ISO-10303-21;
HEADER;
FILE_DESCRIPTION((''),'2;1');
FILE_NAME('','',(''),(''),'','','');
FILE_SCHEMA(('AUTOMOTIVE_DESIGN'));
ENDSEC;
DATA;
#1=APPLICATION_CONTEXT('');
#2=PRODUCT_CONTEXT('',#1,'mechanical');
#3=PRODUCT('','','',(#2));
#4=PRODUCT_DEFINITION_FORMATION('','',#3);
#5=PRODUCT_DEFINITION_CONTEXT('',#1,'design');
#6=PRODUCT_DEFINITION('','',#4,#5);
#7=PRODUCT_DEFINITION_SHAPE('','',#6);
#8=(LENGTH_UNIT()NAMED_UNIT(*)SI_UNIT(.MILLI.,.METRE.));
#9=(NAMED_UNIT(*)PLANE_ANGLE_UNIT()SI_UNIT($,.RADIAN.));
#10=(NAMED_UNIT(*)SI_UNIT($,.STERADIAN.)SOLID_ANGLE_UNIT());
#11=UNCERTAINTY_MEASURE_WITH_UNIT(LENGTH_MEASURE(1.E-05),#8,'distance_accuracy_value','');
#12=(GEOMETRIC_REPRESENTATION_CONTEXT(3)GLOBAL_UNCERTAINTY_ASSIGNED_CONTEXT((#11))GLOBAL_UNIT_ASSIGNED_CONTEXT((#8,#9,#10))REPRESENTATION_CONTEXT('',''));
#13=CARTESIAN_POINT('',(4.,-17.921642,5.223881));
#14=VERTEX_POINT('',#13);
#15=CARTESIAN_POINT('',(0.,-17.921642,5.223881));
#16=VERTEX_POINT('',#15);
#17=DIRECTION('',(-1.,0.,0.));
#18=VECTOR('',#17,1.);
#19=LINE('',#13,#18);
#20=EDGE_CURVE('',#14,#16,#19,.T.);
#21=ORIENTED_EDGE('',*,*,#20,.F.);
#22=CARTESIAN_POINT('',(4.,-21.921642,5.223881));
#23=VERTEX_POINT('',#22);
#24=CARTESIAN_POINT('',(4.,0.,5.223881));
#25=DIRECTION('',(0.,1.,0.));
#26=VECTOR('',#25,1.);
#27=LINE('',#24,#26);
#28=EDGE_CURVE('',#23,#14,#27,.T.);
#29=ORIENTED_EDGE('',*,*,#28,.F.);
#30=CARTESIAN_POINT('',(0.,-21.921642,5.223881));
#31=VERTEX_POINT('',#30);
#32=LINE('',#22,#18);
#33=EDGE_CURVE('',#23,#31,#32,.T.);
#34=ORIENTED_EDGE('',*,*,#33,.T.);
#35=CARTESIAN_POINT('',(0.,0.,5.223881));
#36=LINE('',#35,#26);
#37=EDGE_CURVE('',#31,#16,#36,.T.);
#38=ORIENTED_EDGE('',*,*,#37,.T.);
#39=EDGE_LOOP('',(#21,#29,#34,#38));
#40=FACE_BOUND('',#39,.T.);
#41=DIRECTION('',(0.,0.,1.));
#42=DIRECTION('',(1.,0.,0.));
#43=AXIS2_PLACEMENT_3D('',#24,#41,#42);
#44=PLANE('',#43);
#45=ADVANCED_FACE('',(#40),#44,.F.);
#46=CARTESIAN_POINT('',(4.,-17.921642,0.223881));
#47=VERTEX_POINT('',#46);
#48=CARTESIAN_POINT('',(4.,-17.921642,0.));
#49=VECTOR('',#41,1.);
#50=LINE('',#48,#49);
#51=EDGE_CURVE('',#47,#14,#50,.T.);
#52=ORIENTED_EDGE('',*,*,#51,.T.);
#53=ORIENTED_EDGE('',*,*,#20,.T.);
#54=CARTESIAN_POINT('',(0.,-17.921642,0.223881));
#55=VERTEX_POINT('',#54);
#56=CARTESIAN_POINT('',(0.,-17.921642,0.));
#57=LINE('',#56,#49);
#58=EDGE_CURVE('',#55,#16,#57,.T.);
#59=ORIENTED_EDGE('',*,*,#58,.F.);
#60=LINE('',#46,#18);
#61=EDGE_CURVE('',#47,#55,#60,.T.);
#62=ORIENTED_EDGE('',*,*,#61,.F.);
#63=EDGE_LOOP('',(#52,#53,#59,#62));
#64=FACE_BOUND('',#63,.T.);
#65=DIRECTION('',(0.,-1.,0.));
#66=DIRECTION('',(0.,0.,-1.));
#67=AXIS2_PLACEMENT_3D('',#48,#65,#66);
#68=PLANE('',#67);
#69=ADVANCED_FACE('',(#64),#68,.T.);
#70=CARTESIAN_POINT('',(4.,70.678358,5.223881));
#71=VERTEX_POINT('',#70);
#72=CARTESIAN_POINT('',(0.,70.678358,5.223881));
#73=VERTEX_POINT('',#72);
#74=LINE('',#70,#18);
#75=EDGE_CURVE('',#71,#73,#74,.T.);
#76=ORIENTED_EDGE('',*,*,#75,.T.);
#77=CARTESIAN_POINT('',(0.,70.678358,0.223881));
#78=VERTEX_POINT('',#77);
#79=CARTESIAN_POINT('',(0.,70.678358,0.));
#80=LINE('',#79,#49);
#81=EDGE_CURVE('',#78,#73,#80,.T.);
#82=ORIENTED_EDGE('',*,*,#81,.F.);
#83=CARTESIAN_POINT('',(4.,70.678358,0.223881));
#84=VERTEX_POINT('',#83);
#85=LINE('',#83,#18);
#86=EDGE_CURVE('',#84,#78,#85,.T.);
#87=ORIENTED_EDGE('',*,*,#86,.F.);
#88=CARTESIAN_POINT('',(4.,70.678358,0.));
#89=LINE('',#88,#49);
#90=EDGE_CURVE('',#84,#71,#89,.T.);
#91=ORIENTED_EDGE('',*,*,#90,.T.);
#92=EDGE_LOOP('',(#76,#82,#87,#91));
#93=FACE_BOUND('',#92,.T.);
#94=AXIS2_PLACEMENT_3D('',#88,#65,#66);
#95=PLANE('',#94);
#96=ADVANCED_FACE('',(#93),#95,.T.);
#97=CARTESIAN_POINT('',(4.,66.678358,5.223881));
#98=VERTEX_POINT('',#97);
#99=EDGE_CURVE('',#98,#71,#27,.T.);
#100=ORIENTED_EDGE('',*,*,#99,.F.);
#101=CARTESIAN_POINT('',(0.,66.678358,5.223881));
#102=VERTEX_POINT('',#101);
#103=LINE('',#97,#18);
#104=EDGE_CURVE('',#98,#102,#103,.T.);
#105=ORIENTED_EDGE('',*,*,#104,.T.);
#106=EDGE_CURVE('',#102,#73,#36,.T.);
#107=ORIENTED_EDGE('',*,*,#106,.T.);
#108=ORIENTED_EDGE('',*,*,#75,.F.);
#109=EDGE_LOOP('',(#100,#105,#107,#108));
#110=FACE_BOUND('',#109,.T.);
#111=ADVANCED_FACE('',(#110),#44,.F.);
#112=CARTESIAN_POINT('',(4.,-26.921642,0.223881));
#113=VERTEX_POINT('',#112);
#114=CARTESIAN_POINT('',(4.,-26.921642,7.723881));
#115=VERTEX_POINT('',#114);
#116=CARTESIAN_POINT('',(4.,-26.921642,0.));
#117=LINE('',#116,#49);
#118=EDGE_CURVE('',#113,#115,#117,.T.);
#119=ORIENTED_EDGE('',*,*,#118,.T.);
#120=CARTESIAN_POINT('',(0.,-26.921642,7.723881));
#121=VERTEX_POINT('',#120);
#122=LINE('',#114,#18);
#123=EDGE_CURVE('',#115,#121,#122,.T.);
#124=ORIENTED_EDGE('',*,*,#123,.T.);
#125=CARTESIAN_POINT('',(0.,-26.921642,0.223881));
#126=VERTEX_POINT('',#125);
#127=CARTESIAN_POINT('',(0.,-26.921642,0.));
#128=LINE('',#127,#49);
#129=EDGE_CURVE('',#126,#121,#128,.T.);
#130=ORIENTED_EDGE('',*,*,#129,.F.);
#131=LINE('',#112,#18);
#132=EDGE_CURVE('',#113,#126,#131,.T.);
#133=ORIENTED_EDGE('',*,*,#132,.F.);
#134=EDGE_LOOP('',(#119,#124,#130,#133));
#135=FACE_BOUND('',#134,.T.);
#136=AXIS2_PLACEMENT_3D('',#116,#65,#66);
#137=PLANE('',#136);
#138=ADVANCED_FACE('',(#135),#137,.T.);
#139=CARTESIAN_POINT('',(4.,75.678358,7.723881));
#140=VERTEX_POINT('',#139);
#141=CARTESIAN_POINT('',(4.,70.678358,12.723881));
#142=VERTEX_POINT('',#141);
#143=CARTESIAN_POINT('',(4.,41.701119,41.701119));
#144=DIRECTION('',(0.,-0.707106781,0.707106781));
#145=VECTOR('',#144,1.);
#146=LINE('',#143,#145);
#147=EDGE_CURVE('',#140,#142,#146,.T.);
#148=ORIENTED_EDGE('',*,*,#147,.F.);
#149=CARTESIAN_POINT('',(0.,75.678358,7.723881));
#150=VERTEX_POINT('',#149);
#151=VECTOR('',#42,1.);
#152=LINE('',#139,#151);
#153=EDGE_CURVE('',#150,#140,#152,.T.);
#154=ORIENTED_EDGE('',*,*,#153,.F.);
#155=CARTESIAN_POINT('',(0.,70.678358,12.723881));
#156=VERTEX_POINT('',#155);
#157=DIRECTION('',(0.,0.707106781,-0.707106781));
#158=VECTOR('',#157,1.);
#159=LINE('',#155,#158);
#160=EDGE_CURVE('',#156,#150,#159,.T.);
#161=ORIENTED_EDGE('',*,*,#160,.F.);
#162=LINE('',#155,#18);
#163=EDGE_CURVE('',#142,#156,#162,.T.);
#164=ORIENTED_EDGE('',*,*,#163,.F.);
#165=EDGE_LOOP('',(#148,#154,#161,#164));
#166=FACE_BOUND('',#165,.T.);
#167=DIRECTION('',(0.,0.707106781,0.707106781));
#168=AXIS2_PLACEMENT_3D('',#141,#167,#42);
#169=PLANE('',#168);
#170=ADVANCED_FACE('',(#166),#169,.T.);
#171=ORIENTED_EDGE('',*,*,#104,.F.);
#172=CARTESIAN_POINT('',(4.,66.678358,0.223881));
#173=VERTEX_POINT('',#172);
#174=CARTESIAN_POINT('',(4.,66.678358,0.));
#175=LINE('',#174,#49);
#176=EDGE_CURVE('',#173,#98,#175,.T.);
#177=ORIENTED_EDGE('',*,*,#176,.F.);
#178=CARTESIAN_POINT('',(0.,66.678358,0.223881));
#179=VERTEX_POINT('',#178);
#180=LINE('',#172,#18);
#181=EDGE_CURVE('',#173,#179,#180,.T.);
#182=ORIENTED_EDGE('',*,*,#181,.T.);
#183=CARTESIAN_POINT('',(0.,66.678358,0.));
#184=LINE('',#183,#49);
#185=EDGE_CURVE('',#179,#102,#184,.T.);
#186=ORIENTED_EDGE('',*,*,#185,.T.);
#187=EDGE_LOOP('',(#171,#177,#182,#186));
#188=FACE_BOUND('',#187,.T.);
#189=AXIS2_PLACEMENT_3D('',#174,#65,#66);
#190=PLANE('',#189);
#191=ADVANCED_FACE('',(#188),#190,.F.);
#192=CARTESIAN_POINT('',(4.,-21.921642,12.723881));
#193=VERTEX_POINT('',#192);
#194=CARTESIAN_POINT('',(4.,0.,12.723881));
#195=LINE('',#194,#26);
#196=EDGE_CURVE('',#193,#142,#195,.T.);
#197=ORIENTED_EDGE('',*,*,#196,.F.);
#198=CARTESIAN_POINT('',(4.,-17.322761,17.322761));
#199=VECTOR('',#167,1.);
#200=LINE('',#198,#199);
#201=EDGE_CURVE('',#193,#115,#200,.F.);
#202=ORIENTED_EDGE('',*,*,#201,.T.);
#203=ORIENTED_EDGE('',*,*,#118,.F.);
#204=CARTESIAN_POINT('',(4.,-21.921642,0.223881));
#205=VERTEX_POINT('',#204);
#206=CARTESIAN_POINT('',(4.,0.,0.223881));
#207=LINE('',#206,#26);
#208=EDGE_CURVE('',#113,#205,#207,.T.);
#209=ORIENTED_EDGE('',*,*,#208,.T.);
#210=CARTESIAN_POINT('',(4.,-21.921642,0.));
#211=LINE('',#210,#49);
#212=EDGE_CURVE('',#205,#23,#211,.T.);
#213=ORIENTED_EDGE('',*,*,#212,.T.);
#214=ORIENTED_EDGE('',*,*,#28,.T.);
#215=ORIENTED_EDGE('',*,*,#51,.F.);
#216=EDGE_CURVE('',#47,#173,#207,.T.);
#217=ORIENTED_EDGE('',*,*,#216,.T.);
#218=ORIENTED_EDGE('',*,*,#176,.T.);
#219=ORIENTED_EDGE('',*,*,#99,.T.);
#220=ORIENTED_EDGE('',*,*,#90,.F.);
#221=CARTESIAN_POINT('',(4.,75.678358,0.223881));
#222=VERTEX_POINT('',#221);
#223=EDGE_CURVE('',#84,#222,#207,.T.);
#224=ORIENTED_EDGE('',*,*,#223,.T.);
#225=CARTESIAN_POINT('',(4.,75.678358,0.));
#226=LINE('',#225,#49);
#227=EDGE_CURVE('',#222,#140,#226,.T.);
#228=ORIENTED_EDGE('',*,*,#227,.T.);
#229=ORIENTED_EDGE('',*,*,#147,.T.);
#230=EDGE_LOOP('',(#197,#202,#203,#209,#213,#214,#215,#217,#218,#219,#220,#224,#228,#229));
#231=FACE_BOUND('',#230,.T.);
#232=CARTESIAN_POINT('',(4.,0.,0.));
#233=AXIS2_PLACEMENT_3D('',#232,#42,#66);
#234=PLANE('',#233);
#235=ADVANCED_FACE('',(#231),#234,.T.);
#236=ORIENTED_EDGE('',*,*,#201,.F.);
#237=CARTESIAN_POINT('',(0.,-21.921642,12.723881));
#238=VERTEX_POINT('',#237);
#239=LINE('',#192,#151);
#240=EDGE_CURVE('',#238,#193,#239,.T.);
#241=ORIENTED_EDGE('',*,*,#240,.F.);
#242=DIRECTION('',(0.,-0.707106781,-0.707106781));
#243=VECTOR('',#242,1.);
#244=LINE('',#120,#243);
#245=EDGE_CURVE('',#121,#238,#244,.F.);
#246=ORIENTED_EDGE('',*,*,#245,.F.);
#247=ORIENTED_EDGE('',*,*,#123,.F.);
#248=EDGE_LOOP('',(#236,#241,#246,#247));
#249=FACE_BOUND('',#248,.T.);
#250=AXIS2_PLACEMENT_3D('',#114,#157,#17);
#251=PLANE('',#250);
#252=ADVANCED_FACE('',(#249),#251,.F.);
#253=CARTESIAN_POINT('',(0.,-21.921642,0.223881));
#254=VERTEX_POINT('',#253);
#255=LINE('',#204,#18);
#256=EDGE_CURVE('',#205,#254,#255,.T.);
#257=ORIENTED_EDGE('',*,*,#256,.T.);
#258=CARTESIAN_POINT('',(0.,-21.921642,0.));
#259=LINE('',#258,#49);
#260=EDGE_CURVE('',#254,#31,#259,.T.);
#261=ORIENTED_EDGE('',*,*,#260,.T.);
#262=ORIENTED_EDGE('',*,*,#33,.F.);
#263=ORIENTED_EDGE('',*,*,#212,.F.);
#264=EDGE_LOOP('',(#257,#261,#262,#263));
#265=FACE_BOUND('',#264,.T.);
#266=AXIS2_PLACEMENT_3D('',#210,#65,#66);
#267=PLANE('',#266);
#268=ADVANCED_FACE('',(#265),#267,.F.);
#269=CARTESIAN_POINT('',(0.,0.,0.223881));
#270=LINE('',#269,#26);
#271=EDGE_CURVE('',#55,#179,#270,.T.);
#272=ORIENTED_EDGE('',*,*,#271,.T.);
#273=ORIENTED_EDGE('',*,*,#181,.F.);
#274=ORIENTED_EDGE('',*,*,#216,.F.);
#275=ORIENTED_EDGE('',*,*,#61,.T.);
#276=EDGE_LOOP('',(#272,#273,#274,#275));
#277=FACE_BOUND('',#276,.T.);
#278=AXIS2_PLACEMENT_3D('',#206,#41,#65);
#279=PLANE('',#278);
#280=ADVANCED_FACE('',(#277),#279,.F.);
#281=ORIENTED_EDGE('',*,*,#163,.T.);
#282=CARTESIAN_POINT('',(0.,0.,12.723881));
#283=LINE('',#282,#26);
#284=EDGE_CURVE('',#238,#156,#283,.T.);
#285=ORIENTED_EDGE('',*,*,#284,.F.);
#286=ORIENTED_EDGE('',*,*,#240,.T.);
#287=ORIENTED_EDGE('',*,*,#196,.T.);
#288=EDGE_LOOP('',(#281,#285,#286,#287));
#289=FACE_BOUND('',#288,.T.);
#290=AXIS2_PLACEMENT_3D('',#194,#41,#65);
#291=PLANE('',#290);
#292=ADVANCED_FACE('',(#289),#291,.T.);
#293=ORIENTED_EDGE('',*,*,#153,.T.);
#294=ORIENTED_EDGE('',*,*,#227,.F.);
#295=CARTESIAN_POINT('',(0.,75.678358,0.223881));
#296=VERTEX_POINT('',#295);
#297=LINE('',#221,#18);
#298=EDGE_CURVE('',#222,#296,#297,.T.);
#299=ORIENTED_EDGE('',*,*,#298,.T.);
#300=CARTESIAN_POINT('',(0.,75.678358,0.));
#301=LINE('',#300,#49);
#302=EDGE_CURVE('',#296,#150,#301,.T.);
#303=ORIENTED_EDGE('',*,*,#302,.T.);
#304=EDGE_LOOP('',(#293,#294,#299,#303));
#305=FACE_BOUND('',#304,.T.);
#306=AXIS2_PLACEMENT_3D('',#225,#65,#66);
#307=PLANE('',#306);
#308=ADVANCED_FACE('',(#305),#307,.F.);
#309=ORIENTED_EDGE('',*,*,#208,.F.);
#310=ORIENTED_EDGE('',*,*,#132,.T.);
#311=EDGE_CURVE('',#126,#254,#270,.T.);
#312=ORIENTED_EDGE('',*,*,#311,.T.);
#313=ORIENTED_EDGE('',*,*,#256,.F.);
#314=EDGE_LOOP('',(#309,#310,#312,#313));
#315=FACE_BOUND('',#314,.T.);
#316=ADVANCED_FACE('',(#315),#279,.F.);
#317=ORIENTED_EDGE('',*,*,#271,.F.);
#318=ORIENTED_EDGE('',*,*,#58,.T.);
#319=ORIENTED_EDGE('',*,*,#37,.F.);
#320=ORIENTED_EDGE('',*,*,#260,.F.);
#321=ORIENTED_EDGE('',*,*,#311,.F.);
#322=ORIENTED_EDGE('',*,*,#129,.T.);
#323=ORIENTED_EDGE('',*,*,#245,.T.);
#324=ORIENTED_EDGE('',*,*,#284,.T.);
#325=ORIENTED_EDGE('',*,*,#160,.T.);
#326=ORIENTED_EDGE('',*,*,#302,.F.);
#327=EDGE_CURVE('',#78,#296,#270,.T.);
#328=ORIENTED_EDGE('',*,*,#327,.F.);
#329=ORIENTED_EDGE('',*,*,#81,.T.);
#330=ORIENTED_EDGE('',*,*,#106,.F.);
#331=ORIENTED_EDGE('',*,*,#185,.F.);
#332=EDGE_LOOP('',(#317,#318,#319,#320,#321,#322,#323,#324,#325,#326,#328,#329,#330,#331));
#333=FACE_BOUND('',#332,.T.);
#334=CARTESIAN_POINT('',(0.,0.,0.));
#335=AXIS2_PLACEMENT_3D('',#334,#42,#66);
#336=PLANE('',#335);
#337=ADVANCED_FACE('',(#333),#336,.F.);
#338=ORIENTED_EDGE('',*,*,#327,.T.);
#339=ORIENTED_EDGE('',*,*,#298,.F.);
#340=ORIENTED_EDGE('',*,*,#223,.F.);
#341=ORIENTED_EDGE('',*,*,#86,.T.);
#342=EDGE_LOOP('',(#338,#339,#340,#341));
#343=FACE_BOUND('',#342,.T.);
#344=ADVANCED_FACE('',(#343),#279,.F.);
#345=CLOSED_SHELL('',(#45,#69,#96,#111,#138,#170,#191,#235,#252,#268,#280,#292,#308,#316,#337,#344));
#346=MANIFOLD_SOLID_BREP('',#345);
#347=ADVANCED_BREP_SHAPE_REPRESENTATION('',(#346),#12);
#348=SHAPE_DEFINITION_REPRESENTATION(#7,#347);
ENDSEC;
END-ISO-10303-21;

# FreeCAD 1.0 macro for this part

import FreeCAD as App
import Part
import Sketcher
from FreeCAD import Vector
Q = App.Units.Quantity


def edges_at(feature, points):
    """Names of the edges that pass closest to the given points."""
    edges = feature.Shape.Edges
    near = lambda p: min(range(len(edges)), key=lambda i: edges[i].distToShape(Part.Vertex(*p))[0])
    return sorted({f"Edge{near(p) + 1}" for p in points})


def add_polygon(sketch, points):
    """Adds a closed chain of lines whose ends are joined by coincident constraints."""
    first, n = sketch.GeometryCount, len(points)
    for a, b in zip(points, points[1:] + points[:1]):
        sketch.addGeometry(Part.LineSegment(App.Vector(*a, 0), App.Vector(*b, 0)), False)
    for i in range(n):
        sketch.addConstraint(Sketcher.Constraint("Coincident", first + i, 2, first + (i + 1) % n, 1))

doc = App.newDocument("Part")
body = doc.addObject("PartDesign::Body", "Body")

# Sketch on YZ plane
sketch1 = body.newObject("Sketcher::SketchObject", "Sketch")
sketch1.AttachmentSupport = (doc.getObject("YZ_Plane"), [""])
sketch1.MapMode = "FlatFace"
add_polygon(sketch1, [(-21.9, 5.2), (-17.9, 5.2), (-17.9, 0.2), (66.7, 0.2), (66.7, 5.2), (70.7, 5.2), (70.7, 0.2), (75.7, 0.2), (75.7, 12.7), (-26.9, 12.7), (-26.9, 0.2), (-21.9, 0.2)])  # lines 0-11
sketch1.addConstraint(Sketcher.Constraint("Horizontal", 0))
sketch1.addConstraint(Sketcher.Constraint("Vertical", 1))
sketch1.addConstraint(Sketcher.Constraint("Horizontal", 2))
sketch1.addConstraint(Sketcher.Constraint("Vertical", 3))
sketch1.addConstraint(Sketcher.Constraint("Horizontal", 4))
sketch1.addConstraint(Sketcher.Constraint("Vertical", 5))
sketch1.addConstraint(Sketcher.Constraint("Horizontal", 6))
sketch1.addConstraint(Sketcher.Constraint("Vertical", 7))
sketch1.addConstraint(Sketcher.Constraint("Horizontal", 8))
sketch1.addConstraint(Sketcher.Constraint("Vertical", 9))
sketch1.addConstraint(Sketcher.Constraint("Horizontal", 10))
sketch1.addConstraint(Sketcher.Constraint("Vertical", 11))
sketch1.addConstraint(Sketcher.Constraint("Horizontal", 0, 2, 3, 2))
sketch1.addConstraint(Sketcher.Constraint("Horizontal", 2, 2, 5, 2))
sketch1.addConstraint(Sketcher.Constraint("Horizontal", 6, 2, 9, 2))
sketch1.addConstraint(Sketcher.Constraint("Equal", 0, 4))
sketch1.addConstraint(Sketcher.Constraint("Equal", 6, 10))
sketch1.addConstraint(Sketcher.Constraint("Equal", 10, 1))
sketch1.addConstraint(Sketcher.Constraint("DistanceX", 0, 1, 0, 2, Q("4 mm")))
sketch1.addConstraint(Sketcher.Constraint("DistanceX", 6, 1, 6, 2, Q("5 mm")))
sketch1.addConstraint(Sketcher.Constraint("DistanceX", 2, 1, 2, 2, Q("84.6 mm")))
sketch1.addConstraint(Sketcher.Constraint("DistanceY", 7, 1, 7, 2, Q("12.5 mm")))
sketch1.addConstraint(Sketcher.Constraint("DistanceX", 0, 2, -1, 1, Q("17.921642 mm")))
sketch1.addConstraint(Sketcher.Constraint("DistanceY", -1, 1, 0, 2, Q("5.223881 mm")))
pad1 = body.newObject("PartDesign::Pad", "Pad")
pad1.Profile = sketch1
pad1.Length = 4
doc.recompute()

chamfer = body.newObject("PartDesign::Chamfer", "Chamfer")
chamfer.Base = (pad1, edges_at(pad1, [(2, -26.922, 12.724), (2, 75.678, 12.724)]))
chamfer.Size = 5

doc.recompute()
